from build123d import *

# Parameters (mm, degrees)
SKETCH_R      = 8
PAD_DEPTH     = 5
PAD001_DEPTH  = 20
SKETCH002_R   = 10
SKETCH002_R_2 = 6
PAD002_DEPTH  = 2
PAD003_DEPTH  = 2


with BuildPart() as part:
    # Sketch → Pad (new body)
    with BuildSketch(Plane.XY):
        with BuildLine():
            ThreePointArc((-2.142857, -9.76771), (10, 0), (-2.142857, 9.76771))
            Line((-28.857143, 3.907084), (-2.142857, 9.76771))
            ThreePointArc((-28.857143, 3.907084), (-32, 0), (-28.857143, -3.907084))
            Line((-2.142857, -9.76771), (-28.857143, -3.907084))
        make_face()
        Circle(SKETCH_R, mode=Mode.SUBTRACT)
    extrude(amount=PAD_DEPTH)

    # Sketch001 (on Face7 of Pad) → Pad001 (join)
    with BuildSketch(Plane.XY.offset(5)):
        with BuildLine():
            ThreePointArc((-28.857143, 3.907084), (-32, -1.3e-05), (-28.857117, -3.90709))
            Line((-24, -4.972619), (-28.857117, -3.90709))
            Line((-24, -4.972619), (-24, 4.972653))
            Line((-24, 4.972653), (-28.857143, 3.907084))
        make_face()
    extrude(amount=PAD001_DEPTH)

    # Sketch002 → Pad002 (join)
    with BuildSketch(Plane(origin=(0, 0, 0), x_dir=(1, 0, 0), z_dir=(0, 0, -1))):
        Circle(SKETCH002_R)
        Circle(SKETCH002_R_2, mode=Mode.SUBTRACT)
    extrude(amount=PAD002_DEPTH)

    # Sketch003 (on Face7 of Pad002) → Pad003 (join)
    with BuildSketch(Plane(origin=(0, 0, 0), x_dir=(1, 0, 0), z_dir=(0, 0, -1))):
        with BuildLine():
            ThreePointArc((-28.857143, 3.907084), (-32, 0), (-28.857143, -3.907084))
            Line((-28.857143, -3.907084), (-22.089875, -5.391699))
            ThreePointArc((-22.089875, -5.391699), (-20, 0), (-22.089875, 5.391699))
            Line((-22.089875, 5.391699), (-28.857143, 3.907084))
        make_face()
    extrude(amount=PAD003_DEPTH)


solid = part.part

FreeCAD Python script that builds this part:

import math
import FreeCAD as App
import Part
import Sketcher

V = App.Vector
Q = App.Units.Quantity

doc = App.newDocument("Part")
params = doc.addObject("Spreadsheet::Sheet", "Params")
for row, (alias, value) in enumerate([
    ("sketch1_diameter", "16 mm"),
    ("sketch1_radius", "10 mm"),
    ("sketch1_radius2", "4 mm"),
    ("pad1_length", "5 mm"),
    ("sketch2_radius", "4 mm"),
    ("pad2_length", "20 mm"),
    ("sketch3_diameter", "20 mm"),
    ("sketch3_diameter2", "12 mm"),
    ("pad3_length", "2 mm"),
    ("sketch4_radius", "4 mm"),
    ("sketch4_radius2", "7.999999 mm"),
    ("pad4_length", "2 mm"),
], start=1):
    params.set(f"A{row}", alias)
    params.set(f"B{row}", "=" + value)
    params.setAlias(f"B{row}", alias)

body = doc.addObject("PartDesign::Body", "Body")

sketch1 = body.newObject("Sketcher::SketchObject", "Sketch")
sketch1.AttachmentSupport = (doc.getObject("XY_Plane"), [""])
sketch1.MapMode = "FlatFace"
sketch1.addGeometry([
    Part.ArcOfCircle(Part.Circle(V(0, 0, 0), V(0, 0, 1), 10), math.radians(-102.373626), math.radians(102.373626)),
    Part.LineSegment(V(-2.142857, 9.76771, 0), V(-28.857143, 3.907084, 0)),
    Part.ArcOfCircle(Part.Circle(V(-28, 0, 0), V(0, 0, 1), 4), math.radians(102.373626), math.radians(257.626374)),
    Part.LineSegment(V(-28.857143, -3.907084, 0), V(-2.142857, -9.76771, 0)),
    Part.Circle(V(0, 0, 0), V(0, 0, 1), 8),
], False)
sketch1.addConstraint([
    Sketcher.Constraint("Tangent", 0, 2, 1, 1),
    Sketcher.Constraint("Tangent", 1, 2, 2, 1),
    Sketcher.Constraint("Tangent", 2, 2, 3, 1),
    Sketcher.Constraint("Tangent", 3, 2, 0, 1),
    Sketcher.Constraint("Coincident", 0, 3, -1, 1),
    Sketcher.Constraint("Coincident", 4, 3, -1, 1),
    Sketcher.Constraint("PointOnObject", 2, 3, -1),
    Sketcher.Constraint("Diameter", 4, Q("16 mm")),
    Sketcher.Constraint("Radius", 0, Q("10 mm")),
    Sketcher.Constraint("Radius", 2, Q("4 mm")),
    Sketcher.Constraint("DistanceX", 2, 3, -1, 1, Q("28 mm")),
])
sketch1.setExpression("Constraints[7]", "Params.sketch1_diameter")
sketch1.setExpression("Constraints[8]", "Params.sketch1_radius")
sketch1.setExpression("Constraints[9]", "Params.sketch1_radius2")
pad1 = body.newObject("PartDesign::Pad", "Pad")
pad1.Profile = sketch1
pad1.setExpression("Length", "Params.pad1_length")

sketch2 = body.newObject("Sketcher::SketchObject", "Sketch001")
sketch2.AttachmentSupport = (doc.getObject("XY_Plane"), [""])
sketch2.MapMode = "FlatFace"
sketch2.AttachmentOffset = App.Placement(V(0, 0, 5), App.Rotation())
sketch2.addGeometry([
    Part.ArcOfCircle(Part.Circle(V(-28, 0, 0), V(0, 0, 1), 4), math.radians(102.373628), math.radians(257.626753)),
    Part.LineSegment(V(-28.857117, -3.90709, 0), V(-24, -4.972619, 0)),
    Part.LineSegment(V(-24, -4.972619, 0), V(-24, 4.972653, 0)),
    Part.LineSegment(V(-24, 4.972653, 0), V(-28.857143, 3.907084, 0)),
], False)
sketch2.addConstraint([
    Sketcher.Constraint("Tangent", 0, 2, 1, 1),
    Sketcher.Constraint("Coincident", 1, 2, 2, 1),
    Sketcher.Constraint("Coincident", 2, 2, 3, 1),
    Sketcher.Constraint("Tangent", 3, 2, 0, 1),
    Sketcher.Constraint("Vertical", 2),
    Sketcher.Constraint("PointOnObject", 0, 3, -1),
    Sketcher.Constraint("Radius", 0, Q("4 mm")),
    Sketcher.Constraint("DistanceX", 0, 3, -1, 1, Q("28 mm")),
    Sketcher.Constraint("DistanceX", 1, 2, -1, 1, Q("24 mm")),
    Sketcher.Constraint("DistanceY", 2, 1, 2, 2, Q("9.945272 mm")),
    Sketcher.Constraint("Distance", 1, Q("4.972619 mm")),
])
sketch2.setExpression("Constraints[6]", "Params.sketch2_radius")
pad2 = body.newObject("PartDesign::Pad", "Pad001")
pad2.Profile = sketch2
pad2.setExpression("Length", "Params.pad2_length")

sketch3 = body.newObject("Sketcher::SketchObject", "Sketch002")
sketch3.AttachmentSupport = (doc.getObject("XY_Plane"), [""])
sketch3.MapMode = "FlatFace"
sketch3.addGeometry([
    Part.Circle(V(0, 0, 0), V(0, 0, 1), 10),
    Part.Circle(V(0, 0, 0), V(0, 0, 1), 6),
], False)
sketch3.addConstraint([
    Sketcher.Constraint("Coincident", 0, 3, -1, 1),
    Sketcher.Constraint("Coincident", 1, 3, -1, 1),
    Sketcher.Constraint("Diameter", 0, Q("20 mm")),
    Sketcher.Constraint("Diameter", 1, Q("12 mm")),
])
sketch3.setExpression("Constraints[2]", "Params.sketch3_diameter")
sketch3.setExpression("Constraints[3]", "Params.sketch3_diameter2")
pad3 = body.newObject("PartDesign::Pad", "Pad002")
pad3.Profile = sketch3
pad3.setExpression("Length", "Params.pad3_length")
pad3.Reversed = True

sketch4 = body.newObject("Sketcher::SketchObject", "Sketch003")
sketch4.AttachmentSupport = (doc.getObject("XY_Plane"), [""])
sketch4.MapMode = "FlatFace"
sketch4.addGeometry([
    Part.ArcOfCircle(Part.Circle(V(-28, 0, 0), V(0, 0, 1), 4), math.radians(102.373626), math.radians(257.626374)),
    Part.LineSegment(V(-28.857143, 3.907084, 0), V(-22.089875, 5.391699, 0)),
    Part.ArcOfCircle(Part.Circle(V(-27.999999, 0, 0), V(0, 0, 1), 7.999999), math.radians(-42.373631), math.radians(42.373631)),
    Part.LineSegment(V(-22.089875, -5.391699, 0), V(-28.857143, -3.907084, 0)),
], False)
sketch4.addConstraint([
    Sketcher.Constraint("Tangent", 0, 1, 1, 1),
    Sketcher.Constraint("Coincident", 1, 2, 2, 2),
    Sketcher.Constraint("Coincident", 2, 1, 3, 1),
    Sketcher.Constraint("Tangent", 3, 2, 0, 2),
    Sketcher.Constraint("Coincident", 2, 3, 0, 3),
    Sketcher.Constraint("Symmetric", 1, 2, 2, 1, -1),
    Sketcher.Constraint("Radius", 0, Q("4 mm")),
    Sketcher.Constraint("Radius", 2, Q("7.999999 mm")),
    Sketcher.Constraint("DistanceX", 0, 3, -1, 1, Q("28 mm")),
    Sketcher.Constraint("DistanceY", -1, 1, 1, 2, Q("5.391699 mm")),
])
sketch4.setExpression("Constraints[6]", "Params.sketch4_radius")
sketch4.setExpression("Constraints[7]", "Params.sketch4_radius2")
pad4 = body.newObject("PartDesign::Pad", "Pad003")
pad4.Profile = sketch4
pad4.setExpression("Length", "Params.pad4_length")
pad4.Reversed = True

doc.recompute()
